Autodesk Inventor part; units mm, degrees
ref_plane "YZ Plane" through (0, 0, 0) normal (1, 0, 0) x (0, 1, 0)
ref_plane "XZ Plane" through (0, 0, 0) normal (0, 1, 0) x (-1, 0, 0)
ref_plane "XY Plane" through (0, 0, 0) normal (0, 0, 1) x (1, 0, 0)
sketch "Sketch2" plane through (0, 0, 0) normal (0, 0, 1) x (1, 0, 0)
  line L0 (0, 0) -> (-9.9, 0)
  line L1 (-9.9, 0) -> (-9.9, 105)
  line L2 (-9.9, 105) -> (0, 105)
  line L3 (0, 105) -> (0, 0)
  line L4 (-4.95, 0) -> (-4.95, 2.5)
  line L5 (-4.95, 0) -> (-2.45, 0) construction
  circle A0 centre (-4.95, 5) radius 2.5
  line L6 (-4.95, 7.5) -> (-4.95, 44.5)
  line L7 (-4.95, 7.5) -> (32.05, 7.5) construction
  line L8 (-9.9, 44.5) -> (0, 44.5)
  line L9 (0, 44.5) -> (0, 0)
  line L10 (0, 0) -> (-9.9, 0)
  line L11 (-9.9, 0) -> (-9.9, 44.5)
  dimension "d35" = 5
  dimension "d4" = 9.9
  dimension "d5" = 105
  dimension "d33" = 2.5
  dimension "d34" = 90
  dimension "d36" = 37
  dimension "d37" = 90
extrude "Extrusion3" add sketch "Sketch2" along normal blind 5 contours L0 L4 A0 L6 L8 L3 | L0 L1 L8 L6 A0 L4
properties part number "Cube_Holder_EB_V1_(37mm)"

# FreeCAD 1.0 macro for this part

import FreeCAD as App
import Part
import Sketcher

V = App.Vector


def add_polygon(sketch, points):
    """Adds a closed chain of lines whose ends are joined by coincident constraints."""
    first, n = sketch.GeometryCount, len(points)
    for a, b in zip(points, points[1:] + points[:1]):
        sketch.addGeometry(Part.LineSegment(App.Vector(*a, 0), App.Vector(*b, 0)), False)
    for i in range(n):
        sketch.addConstraint(Sketcher.Constraint("Coincident", first + i, 2, first + (i + 1) % n, 1))

doc = App.newDocument("Part")
body = doc.addObject("PartDesign::Body", "Body")

# Sketch on XY plane
sketch1 = body.newObject("Sketcher::SketchObject", "Sketch")
sketch1.AttachmentSupport = (doc.getObject("XY_Plane"), [""])
sketch1.MapMode = "FlatFace"
add_polygon(sketch1, [(0, 0), (0, 44.5), (-9.9, 44.5), (-9.9, 0)])  # lines 0-3
sketch1.addGeometry(Part.Circle(V(-4.95, 5, 0), V(0, 0, 1), 2.5), False)  # 4
sketch1.addConstraint([
    Sketcher.Constraint("Vertical", 0),
    Sketcher.Constraint("Horizontal", 1),
    Sketcher.Constraint("Vertical", 2),
    Sketcher.Constraint("Horizontal", 3),
    Sketcher.Constraint("Coincident", 3, 2, -1, 1),
    Sketcher.Constraint("Diameter", 4, 5.0),
    Sketcher.Constraint("DistanceX", 1, 2, 1, 1, 9.9),
    Sketcher.Constraint("DistanceY", -1, 1, 4, 3, 5.0),
    Sketcher.Constraint("DistanceY", 0, 1, 0, 2, 44.5),
    Sketcher.Constraint("DistanceX", 4, 3, -1, 1, 4.95),
])
pad1 = body.newObject("PartDesign::Pad", "Pad")
pad1.Profile = sketch1
pad1.Length = 5

doc.recompute()
